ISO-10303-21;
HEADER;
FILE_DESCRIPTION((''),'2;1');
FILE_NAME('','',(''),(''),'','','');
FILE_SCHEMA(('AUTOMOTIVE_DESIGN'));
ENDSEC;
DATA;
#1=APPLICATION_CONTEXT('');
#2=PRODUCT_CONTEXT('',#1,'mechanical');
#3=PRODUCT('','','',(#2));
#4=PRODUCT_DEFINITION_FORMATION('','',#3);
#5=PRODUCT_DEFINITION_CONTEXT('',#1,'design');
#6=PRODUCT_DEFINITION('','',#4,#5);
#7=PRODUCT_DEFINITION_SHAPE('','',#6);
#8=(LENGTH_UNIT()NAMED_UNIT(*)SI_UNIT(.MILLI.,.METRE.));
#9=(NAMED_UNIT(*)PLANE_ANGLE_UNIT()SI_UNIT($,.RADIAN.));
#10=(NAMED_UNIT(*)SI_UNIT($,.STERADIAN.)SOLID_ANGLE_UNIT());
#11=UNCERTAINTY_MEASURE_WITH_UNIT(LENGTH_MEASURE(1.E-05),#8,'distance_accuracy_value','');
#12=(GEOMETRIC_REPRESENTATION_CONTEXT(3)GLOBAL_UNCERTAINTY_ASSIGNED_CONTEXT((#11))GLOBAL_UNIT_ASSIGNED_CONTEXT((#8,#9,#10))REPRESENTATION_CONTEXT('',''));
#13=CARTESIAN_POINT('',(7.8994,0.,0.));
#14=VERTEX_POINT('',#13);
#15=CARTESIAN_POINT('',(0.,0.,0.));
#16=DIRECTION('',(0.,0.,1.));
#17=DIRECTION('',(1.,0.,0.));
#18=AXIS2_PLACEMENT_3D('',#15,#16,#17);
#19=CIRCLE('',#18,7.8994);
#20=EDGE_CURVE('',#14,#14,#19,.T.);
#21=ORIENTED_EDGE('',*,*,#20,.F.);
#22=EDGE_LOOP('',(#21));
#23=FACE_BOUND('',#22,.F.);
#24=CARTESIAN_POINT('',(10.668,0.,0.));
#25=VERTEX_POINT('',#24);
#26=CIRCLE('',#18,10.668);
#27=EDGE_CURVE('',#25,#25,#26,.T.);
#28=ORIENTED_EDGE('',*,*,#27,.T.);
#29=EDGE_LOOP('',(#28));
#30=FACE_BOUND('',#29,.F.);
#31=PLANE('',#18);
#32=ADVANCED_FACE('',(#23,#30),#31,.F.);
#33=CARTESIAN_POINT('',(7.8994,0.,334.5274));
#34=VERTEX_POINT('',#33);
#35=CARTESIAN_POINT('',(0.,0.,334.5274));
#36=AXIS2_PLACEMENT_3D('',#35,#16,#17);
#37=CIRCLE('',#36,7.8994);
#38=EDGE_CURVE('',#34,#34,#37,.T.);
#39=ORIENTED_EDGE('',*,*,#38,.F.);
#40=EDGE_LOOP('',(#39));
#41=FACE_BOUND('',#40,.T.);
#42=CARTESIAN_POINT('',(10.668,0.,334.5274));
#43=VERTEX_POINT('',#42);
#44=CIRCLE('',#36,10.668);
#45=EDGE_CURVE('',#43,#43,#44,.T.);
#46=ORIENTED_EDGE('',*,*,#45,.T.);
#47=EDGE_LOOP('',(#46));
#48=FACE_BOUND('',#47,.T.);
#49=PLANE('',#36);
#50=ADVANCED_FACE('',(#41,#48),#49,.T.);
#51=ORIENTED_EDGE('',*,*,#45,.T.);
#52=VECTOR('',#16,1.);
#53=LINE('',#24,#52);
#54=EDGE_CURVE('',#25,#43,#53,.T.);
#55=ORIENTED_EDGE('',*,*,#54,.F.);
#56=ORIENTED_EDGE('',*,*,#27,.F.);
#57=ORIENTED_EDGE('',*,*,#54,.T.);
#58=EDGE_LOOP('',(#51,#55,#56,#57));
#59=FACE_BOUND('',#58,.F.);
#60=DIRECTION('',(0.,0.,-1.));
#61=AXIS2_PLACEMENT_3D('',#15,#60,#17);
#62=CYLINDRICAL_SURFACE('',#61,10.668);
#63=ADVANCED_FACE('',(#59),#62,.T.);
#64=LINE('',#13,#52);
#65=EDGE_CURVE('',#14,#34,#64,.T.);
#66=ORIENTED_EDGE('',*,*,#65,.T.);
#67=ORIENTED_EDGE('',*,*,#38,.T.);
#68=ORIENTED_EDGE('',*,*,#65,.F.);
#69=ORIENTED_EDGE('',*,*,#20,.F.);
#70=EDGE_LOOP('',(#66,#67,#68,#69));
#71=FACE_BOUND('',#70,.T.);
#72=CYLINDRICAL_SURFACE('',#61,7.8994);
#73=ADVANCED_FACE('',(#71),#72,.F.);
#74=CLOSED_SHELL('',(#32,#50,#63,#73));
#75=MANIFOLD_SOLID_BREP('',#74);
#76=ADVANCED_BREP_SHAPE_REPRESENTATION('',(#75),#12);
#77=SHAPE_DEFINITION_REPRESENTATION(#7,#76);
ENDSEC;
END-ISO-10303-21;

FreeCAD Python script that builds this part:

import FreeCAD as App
import Part
import Sketcher

V = App.Vector
Q = App.Units.Quantity

doc = App.newDocument("Part")
body = doc.addObject("PartDesign::Body", "Body")

sketch1 = body.newObject("Sketcher::SketchObject", "Sketch")
sketch1.AttachmentSupport = (doc.getObject("XY_Plane"), [""])
sketch1.MapMode = "FlatFace"
sketch1.addGeometry(Part.Circle(V(0, 0, 0), V(0, 0, 1), 11), False)
sketch1.addGeometry(Part.Circle(V(0, 0, 0), V(0, 0, 1), 8), False)
sketch1.addConstraint(Sketcher.Constraint("Coincident", 0, 3, -1, 1))
sketch1.addConstraint(Sketcher.Constraint("Coincident", 1, 3, -1, 1))
sketch1.addConstraint(Sketcher.Constraint("Diameter", 0, Q("0.84 in")))
sketch1.addConstraint(Sketcher.Constraint("Diameter", 1, Q("0.622 in")))
pad1 = body.newObject("PartDesign::Pad", "Pad")
pad1.Profile = sketch1
pad1.Length = 334.5274

doc.recompute()
